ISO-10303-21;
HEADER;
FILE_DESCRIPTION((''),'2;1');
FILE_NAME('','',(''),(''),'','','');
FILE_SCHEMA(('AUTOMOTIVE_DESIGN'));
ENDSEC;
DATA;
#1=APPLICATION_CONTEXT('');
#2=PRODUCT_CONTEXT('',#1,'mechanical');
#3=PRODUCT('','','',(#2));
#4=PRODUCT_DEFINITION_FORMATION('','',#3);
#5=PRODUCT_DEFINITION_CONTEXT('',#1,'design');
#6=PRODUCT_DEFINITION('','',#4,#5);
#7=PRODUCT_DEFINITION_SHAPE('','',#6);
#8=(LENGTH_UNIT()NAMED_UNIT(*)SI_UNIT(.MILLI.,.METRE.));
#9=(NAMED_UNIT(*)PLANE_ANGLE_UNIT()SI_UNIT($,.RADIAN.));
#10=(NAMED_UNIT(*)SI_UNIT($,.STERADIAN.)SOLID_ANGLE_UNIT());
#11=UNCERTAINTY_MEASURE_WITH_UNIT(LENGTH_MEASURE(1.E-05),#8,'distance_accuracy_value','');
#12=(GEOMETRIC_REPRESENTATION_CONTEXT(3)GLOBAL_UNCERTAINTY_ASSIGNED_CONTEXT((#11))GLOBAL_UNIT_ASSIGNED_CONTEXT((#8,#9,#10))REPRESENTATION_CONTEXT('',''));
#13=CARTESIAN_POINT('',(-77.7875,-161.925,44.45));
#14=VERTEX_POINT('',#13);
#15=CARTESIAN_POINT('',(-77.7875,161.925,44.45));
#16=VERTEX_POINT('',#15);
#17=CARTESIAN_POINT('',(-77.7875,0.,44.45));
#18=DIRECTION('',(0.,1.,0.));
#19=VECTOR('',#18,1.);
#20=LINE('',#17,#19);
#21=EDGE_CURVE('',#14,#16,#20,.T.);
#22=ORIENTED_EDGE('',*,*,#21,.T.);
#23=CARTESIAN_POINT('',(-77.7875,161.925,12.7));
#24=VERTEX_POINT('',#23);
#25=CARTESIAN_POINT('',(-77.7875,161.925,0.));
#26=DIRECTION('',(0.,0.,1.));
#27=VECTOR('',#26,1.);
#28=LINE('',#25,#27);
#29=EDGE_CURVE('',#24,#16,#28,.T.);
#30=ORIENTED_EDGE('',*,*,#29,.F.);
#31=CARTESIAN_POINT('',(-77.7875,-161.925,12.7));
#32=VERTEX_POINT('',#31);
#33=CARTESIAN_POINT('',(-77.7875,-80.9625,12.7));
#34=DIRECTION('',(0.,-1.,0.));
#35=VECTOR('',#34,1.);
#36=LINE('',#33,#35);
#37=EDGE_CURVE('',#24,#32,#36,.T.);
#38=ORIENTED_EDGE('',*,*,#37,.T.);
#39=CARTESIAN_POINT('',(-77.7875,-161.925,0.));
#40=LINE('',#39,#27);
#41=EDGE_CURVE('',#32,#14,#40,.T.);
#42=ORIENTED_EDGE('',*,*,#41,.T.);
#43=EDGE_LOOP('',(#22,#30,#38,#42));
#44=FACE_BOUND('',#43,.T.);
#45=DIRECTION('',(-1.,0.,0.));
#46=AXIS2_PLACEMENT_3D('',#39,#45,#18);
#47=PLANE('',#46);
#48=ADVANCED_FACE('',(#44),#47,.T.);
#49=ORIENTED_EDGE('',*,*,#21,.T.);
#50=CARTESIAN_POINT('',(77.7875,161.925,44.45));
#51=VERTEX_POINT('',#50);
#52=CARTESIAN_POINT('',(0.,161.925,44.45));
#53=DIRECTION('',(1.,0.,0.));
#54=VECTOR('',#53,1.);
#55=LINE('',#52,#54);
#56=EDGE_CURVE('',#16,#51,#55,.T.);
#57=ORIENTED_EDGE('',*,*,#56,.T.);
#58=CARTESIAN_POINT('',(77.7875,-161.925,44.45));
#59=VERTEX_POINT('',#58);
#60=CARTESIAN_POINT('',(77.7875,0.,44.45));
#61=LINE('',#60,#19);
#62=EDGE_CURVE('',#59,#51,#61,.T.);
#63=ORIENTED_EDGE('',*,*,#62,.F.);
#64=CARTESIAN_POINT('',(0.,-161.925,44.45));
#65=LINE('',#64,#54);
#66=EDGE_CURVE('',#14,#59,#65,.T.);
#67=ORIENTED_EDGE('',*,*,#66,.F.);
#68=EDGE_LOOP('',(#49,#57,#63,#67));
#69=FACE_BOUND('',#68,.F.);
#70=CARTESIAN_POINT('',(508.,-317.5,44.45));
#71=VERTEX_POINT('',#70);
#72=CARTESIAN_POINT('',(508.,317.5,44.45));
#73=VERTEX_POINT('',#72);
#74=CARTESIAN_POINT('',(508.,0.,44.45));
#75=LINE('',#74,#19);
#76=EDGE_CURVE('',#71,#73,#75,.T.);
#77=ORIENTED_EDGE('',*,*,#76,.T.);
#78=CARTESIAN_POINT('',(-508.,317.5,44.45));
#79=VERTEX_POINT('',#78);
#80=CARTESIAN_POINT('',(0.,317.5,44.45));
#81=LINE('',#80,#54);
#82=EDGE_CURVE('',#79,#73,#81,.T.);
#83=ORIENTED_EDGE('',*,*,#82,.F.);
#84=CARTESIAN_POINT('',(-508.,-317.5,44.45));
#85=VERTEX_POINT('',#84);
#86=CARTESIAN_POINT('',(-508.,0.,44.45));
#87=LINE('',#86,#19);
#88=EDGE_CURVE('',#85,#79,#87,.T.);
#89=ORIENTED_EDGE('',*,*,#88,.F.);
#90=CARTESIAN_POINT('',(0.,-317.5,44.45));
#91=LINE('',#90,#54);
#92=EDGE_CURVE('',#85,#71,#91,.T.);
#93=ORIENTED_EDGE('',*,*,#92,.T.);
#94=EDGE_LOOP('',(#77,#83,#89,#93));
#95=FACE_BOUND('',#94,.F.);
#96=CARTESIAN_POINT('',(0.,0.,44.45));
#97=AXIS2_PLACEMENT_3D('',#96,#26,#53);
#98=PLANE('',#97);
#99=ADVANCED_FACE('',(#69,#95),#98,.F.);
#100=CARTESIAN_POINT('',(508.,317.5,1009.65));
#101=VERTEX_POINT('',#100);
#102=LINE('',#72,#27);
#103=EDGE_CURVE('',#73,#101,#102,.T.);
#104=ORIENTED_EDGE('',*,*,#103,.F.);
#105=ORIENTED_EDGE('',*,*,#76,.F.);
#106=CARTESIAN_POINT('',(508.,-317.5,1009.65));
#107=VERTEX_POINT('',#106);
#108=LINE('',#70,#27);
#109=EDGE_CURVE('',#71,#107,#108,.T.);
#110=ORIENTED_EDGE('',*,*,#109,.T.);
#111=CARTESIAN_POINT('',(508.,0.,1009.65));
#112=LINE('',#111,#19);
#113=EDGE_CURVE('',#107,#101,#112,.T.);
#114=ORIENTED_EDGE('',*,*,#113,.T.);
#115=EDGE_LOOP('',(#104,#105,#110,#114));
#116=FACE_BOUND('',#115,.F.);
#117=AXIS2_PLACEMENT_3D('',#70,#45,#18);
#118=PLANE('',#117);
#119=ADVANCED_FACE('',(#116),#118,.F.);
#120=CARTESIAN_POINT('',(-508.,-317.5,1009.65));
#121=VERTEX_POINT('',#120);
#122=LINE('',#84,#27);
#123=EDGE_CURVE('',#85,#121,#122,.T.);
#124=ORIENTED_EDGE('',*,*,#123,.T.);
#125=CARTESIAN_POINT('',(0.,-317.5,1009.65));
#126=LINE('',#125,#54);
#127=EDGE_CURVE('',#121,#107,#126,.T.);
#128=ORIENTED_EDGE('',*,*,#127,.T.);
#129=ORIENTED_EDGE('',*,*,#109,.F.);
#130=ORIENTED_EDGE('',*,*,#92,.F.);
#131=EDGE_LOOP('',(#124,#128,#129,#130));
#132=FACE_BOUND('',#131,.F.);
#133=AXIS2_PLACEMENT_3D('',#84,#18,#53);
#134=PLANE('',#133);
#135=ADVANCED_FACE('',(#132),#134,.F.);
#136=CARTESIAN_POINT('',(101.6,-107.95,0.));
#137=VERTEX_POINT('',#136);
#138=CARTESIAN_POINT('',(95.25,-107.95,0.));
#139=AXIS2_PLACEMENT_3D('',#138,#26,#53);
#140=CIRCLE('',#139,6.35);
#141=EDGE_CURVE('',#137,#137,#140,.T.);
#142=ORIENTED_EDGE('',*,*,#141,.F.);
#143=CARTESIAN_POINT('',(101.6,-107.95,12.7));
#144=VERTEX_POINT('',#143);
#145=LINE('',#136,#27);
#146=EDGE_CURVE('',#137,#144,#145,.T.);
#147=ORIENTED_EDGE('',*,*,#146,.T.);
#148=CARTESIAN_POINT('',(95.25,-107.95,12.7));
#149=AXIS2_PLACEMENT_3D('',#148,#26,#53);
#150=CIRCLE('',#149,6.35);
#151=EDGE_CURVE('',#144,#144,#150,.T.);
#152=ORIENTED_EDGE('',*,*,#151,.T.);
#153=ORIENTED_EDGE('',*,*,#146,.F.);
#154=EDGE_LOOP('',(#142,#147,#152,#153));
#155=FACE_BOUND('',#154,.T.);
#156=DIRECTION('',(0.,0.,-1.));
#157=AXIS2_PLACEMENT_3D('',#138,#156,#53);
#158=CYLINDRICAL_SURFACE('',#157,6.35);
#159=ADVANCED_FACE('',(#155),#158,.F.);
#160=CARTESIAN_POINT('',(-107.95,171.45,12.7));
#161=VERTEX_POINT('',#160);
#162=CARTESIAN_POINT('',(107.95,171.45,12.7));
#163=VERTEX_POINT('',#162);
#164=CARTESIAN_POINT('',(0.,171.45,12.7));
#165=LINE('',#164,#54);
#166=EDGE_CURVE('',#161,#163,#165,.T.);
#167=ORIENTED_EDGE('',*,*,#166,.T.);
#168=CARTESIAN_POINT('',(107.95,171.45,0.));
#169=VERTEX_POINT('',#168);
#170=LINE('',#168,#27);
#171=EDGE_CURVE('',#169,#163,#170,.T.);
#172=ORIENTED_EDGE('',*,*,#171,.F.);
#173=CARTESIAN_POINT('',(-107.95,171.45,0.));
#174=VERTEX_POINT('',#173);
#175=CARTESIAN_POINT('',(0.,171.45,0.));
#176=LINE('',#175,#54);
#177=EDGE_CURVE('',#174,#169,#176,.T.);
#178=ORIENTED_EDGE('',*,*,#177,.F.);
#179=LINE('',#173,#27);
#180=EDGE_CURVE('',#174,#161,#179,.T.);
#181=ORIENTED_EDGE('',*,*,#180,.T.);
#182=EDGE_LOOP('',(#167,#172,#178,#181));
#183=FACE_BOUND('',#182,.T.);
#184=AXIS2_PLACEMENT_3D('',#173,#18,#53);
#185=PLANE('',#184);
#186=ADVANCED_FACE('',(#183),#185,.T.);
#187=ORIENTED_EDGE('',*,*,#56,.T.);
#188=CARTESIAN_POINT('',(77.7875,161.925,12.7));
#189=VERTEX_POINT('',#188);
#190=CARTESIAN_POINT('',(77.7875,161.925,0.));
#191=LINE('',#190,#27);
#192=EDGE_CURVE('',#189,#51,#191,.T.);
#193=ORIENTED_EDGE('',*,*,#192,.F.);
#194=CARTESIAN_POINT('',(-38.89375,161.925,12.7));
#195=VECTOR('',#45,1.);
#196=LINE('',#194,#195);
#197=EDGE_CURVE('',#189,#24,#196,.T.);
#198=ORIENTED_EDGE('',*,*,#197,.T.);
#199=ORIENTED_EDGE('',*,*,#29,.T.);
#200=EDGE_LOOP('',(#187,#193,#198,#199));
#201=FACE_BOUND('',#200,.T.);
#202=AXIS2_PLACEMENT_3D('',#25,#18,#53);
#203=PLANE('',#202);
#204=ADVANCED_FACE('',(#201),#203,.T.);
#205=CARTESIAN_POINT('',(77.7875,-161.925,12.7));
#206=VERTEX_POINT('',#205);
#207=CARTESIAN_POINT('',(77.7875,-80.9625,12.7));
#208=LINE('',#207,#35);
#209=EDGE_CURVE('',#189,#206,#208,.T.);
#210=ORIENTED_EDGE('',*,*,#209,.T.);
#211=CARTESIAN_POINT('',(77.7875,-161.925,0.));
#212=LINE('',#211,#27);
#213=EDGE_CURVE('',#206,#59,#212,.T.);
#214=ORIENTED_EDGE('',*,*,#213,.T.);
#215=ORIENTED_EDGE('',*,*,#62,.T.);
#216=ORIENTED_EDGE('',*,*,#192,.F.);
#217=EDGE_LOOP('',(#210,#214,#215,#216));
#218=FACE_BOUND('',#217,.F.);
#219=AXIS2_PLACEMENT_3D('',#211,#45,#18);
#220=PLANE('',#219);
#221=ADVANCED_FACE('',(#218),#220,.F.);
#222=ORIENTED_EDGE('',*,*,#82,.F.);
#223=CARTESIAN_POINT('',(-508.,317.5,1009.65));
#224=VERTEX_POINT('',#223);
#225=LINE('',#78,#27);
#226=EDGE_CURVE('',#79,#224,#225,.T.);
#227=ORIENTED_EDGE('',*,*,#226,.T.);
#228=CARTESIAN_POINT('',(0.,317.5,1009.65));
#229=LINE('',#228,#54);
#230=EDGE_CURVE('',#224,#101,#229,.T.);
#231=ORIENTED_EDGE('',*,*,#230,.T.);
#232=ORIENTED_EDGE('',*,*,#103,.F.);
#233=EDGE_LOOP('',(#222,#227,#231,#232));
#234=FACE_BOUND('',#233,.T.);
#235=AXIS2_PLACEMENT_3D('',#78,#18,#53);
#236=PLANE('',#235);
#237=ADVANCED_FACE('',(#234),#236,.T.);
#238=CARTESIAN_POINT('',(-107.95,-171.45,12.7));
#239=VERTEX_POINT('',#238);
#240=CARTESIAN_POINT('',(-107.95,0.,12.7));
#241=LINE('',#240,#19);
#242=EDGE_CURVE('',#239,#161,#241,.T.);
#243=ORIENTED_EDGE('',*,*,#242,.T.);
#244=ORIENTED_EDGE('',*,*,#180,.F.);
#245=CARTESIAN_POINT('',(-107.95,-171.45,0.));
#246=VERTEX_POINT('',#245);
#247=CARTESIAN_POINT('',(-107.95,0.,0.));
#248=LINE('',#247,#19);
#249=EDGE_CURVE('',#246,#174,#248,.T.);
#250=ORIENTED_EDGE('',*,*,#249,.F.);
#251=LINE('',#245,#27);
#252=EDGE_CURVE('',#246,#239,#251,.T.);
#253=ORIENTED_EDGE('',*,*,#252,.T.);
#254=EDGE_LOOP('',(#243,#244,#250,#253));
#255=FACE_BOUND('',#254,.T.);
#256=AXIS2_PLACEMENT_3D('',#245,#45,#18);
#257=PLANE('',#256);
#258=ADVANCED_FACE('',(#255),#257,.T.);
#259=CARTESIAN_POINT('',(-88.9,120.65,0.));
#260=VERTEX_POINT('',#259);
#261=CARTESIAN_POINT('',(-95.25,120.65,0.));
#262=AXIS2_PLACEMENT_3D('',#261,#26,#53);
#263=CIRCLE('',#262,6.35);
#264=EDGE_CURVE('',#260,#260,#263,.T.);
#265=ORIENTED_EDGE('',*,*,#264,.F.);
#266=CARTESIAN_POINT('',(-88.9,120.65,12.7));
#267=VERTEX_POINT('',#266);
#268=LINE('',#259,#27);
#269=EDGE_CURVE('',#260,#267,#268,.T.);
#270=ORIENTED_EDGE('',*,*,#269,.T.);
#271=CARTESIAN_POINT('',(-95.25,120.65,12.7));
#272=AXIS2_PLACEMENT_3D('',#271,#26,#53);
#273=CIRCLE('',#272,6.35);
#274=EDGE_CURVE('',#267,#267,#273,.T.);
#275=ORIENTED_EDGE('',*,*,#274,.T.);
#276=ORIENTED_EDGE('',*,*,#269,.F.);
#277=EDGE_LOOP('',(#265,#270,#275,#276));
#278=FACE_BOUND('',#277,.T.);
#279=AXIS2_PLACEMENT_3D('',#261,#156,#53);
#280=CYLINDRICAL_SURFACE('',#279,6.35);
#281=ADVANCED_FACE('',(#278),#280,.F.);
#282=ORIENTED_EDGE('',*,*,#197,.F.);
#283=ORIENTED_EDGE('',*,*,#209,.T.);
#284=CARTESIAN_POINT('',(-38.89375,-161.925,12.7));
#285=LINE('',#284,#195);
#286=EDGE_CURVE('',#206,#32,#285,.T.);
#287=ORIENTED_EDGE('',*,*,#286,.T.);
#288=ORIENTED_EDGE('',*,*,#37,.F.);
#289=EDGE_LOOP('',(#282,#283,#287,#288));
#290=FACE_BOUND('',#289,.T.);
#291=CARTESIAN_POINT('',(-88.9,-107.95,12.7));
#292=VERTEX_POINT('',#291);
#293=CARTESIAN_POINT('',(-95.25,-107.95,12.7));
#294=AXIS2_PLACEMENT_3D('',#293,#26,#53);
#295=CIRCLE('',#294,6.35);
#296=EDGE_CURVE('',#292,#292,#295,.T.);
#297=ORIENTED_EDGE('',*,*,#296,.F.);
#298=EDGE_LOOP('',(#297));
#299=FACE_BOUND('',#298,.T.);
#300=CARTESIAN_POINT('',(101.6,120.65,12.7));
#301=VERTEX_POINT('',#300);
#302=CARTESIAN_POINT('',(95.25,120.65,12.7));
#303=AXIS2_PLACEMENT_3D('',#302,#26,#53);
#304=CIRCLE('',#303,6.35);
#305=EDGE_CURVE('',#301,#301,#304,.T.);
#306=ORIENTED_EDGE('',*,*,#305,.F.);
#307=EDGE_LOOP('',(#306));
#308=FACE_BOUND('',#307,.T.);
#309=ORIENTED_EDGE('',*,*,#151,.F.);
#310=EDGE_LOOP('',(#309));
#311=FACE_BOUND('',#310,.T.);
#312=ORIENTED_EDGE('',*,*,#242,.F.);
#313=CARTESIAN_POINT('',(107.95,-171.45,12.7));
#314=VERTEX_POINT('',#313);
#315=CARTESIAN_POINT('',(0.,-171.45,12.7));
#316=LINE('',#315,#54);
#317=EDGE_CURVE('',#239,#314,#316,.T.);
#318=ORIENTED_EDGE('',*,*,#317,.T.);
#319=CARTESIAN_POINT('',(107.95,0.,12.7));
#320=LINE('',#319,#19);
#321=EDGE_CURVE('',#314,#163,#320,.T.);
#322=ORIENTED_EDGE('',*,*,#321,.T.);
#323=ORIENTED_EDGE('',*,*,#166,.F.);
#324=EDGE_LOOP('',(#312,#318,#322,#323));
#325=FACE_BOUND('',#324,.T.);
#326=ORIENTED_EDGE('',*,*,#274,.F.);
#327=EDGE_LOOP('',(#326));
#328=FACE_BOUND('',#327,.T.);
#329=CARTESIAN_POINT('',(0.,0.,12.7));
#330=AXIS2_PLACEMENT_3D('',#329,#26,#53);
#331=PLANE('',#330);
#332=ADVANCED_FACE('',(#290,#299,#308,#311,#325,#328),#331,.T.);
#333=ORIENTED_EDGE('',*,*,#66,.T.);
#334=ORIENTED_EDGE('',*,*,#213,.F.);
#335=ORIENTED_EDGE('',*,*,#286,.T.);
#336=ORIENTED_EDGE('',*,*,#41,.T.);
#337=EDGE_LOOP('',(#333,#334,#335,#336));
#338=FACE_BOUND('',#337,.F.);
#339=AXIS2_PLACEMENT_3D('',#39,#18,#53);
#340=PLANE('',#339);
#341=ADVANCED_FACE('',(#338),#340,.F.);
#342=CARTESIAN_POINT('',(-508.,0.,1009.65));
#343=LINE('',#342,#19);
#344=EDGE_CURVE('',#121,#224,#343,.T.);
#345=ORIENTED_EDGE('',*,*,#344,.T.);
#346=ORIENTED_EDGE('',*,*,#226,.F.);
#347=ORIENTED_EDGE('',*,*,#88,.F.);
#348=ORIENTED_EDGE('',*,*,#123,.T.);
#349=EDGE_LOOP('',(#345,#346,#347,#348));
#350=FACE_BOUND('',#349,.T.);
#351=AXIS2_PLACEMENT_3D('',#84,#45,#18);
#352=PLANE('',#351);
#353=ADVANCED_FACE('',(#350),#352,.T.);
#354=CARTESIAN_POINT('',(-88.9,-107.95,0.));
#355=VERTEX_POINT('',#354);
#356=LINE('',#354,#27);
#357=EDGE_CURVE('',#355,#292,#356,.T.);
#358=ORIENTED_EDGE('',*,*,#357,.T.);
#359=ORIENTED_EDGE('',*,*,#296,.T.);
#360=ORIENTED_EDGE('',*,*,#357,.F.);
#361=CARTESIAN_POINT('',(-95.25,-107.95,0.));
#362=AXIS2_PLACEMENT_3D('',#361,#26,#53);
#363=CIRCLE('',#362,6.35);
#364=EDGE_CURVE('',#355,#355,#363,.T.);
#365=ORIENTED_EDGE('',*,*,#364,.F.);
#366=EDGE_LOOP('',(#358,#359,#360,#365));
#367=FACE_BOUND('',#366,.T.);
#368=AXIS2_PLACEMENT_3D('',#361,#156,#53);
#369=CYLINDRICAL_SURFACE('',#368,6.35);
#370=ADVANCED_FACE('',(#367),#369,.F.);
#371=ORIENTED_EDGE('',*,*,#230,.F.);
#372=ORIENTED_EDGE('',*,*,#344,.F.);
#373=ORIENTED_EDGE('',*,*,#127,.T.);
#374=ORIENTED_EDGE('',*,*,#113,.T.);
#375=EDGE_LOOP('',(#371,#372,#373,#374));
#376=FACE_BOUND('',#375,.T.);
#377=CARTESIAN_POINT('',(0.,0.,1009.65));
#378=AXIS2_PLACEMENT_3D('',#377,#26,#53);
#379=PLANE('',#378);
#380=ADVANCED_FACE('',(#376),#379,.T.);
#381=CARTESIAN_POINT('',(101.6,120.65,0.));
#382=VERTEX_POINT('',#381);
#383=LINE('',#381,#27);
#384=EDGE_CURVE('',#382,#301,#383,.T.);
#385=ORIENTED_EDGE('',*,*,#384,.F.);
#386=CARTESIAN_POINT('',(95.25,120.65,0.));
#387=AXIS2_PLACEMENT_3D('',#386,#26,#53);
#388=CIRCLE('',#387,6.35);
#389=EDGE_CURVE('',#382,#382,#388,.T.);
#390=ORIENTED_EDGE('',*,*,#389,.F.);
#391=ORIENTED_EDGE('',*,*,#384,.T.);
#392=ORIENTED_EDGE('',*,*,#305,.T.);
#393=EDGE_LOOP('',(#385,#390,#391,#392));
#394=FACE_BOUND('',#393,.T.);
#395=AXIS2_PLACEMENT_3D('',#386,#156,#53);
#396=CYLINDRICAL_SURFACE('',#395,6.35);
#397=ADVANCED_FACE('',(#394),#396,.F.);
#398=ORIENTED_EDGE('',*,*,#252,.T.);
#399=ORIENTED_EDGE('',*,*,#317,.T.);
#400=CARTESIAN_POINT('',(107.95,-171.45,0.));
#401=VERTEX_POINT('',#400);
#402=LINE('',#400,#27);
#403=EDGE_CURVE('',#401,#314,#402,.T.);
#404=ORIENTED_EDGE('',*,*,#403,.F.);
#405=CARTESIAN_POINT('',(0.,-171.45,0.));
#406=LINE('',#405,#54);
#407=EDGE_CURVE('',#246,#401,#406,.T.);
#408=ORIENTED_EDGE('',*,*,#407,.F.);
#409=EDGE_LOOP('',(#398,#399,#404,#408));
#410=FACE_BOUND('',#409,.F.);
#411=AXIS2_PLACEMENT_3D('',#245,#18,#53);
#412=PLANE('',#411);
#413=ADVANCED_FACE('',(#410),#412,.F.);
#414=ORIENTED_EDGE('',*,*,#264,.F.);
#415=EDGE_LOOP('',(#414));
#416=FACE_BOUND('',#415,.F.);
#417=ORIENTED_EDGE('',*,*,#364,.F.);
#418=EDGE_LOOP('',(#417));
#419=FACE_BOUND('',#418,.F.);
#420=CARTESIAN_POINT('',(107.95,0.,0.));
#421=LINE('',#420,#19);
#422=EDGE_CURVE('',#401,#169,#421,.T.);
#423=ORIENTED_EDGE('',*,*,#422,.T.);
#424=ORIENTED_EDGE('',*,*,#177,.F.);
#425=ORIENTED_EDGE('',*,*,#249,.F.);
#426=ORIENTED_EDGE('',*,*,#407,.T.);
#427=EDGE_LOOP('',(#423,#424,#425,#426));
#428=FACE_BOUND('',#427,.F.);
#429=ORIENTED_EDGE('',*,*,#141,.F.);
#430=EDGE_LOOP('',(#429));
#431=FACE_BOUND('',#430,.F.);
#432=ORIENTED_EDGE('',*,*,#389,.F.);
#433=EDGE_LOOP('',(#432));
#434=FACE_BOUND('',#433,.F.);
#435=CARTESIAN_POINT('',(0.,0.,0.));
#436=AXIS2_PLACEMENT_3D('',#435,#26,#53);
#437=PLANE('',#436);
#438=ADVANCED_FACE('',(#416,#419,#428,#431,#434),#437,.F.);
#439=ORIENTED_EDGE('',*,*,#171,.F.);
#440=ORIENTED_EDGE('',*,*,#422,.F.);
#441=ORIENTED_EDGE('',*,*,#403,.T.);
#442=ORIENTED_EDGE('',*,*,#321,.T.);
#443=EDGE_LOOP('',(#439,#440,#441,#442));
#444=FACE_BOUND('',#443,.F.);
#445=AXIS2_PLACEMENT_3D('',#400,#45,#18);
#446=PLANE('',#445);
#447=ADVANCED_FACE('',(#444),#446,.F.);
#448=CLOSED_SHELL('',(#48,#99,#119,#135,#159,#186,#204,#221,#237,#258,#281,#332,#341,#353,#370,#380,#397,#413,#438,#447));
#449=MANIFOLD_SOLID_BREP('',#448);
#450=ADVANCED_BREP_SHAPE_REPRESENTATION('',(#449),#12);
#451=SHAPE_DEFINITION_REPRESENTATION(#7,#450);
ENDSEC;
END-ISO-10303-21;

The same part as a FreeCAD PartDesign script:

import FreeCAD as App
import Part
import Sketcher
Q = App.Units.Quantity

doc = App.newDocument("Part")
body = doc.addObject("PartDesign::Body", "Body")

sketch1 = body.newObject("Sketcher::SketchObject", "Sketch")
sketch1.AttachmentSupport = (doc.getObject("XY_Plane"), [""])
sketch1.MapMode = "FlatFace"
sketch1.addGeometry([
    Part.LineSegment(App.Vector(-108, 171, 0), App.Vector(-108, -171, 0)),
    Part.LineSegment(App.Vector(-108, -171, 0), App.Vector(108, -171, 0)),
    Part.LineSegment(App.Vector(108, -171, 0), App.Vector(108, 171, 0)),
    Part.LineSegment(App.Vector(108, 171, 0), App.Vector(-108, 171, 0)),
    Part.Circle(App.Vector(-95, -108, 0), App.Vector(0, 0, 1), 6),
    Part.Circle(App.Vector(95, -108, 0), App.Vector(0, 0, 1), 6),
    Part.Circle(App.Vector(-95, 121, 0), App.Vector(0, 0, 1), 6),
    Part.Circle(App.Vector(95, 121, 0), App.Vector(0, 0, 1), 6),
], False)
sketch1.addConstraint([
    Sketcher.Constraint("Coincident", 0, 2, 1, 1),
    Sketcher.Constraint("Coincident", 1, 2, 2, 1),
    Sketcher.Constraint("Coincident", 2, 2, 3, 1),
    Sketcher.Constraint("Coincident", 3, 2, 0, 1),
    Sketcher.Constraint("Vertical", 0),
    Sketcher.Constraint("Horizontal", 1),
    Sketcher.Constraint("Vertical", 2),
    Sketcher.Constraint("Horizontal", 3),
    Sketcher.Constraint("Equal", 4, 5),
    Sketcher.Constraint("Equal", 5, 6),
    Sketcher.Constraint("Equal", 6, 7),
    Sketcher.Constraint("Symmetric", 0, 2, 2, 2, -1, 1),
    Sketcher.Constraint("Symmetric", 4, 3, 5, 3, -2),
    Sketcher.Constraint("Symmetric", 6, 3, 7, 3, -2),
    Sketcher.Constraint("Vertical", 4, 3, 6, 3),
    Sketcher.Constraint("Diameter", 4, Q("0.5 in")),
    Sketcher.Constraint("DistanceX", 1, 1, 1, 2, Q("8.5 in")),
    Sketcher.Constraint("DistanceY", 0, 2, 0, 1, Q("13.5 in")),
    Sketcher.Constraint("DistanceY", 4, 3, 6, 3, Q("9 in")),
    Sketcher.Constraint("DistanceX", 0, 2, 5, 3, Q("8 in")),
    Sketcher.Constraint("DistanceY", 7, 3, 2, 2, Q("2 in")),
])
pad1 = body.newObject("PartDesign::Pad", "Pad")
pad1.Profile = sketch1
pad1.Length = Q("0.5 in")

sketch2 = body.newObject("Sketcher::SketchObject", "Sketch001")
sketch2.AttachmentSupport = (doc.getObject("XY_Plane"), [""])
sketch2.MapMode = "FlatFace"
sketch2.addGeometry([
    Part.LineSegment(App.Vector(-78, 162, 0), App.Vector(-78, -162, 0)),
    Part.LineSegment(App.Vector(-78, -162, 0), App.Vector(78, -162, 0)),
    Part.LineSegment(App.Vector(78, -162, 0), App.Vector(78, 162, 0)),
    Part.LineSegment(App.Vector(78, 162, 0), App.Vector(-78, 162, 0)),
], False)
sketch2.addConstraint([
    Sketcher.Constraint("Coincident", 0, 2, 1, 1),
    Sketcher.Constraint("Coincident", 1, 2, 2, 1),
    Sketcher.Constraint("Coincident", 2, 2, 3, 1),
    Sketcher.Constraint("Coincident", 3, 2, 0, 1),
    Sketcher.Constraint("Vertical", 0),
    Sketcher.Constraint("Horizontal", 1),
    Sketcher.Constraint("Vertical", 2),
    Sketcher.Constraint("Horizontal", 3),
    Sketcher.Constraint("Symmetric", 0, 2, 2, 2, -1, 1),
    Sketcher.Constraint("DistanceY", 0, 2, 0, 1, Q("12.75 in")),
    Sketcher.Constraint("DistanceX", 1, 1, 1, 2, Q("6.125 in")),
])
pad2 = body.newObject("PartDesign::Pad", "Pad001")
pad2.Profile = sketch2
pad2.Length = Q("1.75 in")

sketch3 = body.newObject("Sketcher::SketchObject", "Sketch002")
sketch3.AttachmentSupport = (doc.getObject("XY_Plane"), [""])
sketch3.MapMode = "FlatFace"
sketch3.AttachmentOffset = App.Placement(App.Vector(0, 0, 1.75 * 25.4), App.Rotation())
sketch3.addGeometry([
    Part.LineSegment(App.Vector(-508, 318, 0), App.Vector(-508, -318, 0)),
    Part.LineSegment(App.Vector(-508, -318, 0), App.Vector(508, -318, 0)),
    Part.LineSegment(App.Vector(508, -318, 0), App.Vector(508, 318, 0)),
    Part.LineSegment(App.Vector(508, 318, 0), App.Vector(-508, 318, 0)),
], False)
sketch3.addConstraint([
    Sketcher.Constraint("Coincident", 0, 2, 1, 1),
    Sketcher.Constraint("Coincident", 1, 2, 2, 1),
    Sketcher.Constraint("Coincident", 2, 2, 3, 1),
    Sketcher.Constraint("Coincident", 3, 2, 0, 1),
    Sketcher.Constraint("Vertical", 0),
    Sketcher.Constraint("Horizontal", 1),
    Sketcher.Constraint("Vertical", 2),
    Sketcher.Constraint("Horizontal", 3),
    Sketcher.Constraint("Symmetric", 0, 2, 2, 2, -1, 1),
    Sketcher.Constraint("DistanceX", 1, 1, 1, 2, Q("40 in")),
    Sketcher.Constraint("DistanceY", 0, 2, 0, 1, Q("25 in")),
])
pad3 = body.newObject("PartDesign::Pad", "Pad002")
pad3.Profile = sketch3
pad3.Length = Q("38 in")

doc.recompute()
